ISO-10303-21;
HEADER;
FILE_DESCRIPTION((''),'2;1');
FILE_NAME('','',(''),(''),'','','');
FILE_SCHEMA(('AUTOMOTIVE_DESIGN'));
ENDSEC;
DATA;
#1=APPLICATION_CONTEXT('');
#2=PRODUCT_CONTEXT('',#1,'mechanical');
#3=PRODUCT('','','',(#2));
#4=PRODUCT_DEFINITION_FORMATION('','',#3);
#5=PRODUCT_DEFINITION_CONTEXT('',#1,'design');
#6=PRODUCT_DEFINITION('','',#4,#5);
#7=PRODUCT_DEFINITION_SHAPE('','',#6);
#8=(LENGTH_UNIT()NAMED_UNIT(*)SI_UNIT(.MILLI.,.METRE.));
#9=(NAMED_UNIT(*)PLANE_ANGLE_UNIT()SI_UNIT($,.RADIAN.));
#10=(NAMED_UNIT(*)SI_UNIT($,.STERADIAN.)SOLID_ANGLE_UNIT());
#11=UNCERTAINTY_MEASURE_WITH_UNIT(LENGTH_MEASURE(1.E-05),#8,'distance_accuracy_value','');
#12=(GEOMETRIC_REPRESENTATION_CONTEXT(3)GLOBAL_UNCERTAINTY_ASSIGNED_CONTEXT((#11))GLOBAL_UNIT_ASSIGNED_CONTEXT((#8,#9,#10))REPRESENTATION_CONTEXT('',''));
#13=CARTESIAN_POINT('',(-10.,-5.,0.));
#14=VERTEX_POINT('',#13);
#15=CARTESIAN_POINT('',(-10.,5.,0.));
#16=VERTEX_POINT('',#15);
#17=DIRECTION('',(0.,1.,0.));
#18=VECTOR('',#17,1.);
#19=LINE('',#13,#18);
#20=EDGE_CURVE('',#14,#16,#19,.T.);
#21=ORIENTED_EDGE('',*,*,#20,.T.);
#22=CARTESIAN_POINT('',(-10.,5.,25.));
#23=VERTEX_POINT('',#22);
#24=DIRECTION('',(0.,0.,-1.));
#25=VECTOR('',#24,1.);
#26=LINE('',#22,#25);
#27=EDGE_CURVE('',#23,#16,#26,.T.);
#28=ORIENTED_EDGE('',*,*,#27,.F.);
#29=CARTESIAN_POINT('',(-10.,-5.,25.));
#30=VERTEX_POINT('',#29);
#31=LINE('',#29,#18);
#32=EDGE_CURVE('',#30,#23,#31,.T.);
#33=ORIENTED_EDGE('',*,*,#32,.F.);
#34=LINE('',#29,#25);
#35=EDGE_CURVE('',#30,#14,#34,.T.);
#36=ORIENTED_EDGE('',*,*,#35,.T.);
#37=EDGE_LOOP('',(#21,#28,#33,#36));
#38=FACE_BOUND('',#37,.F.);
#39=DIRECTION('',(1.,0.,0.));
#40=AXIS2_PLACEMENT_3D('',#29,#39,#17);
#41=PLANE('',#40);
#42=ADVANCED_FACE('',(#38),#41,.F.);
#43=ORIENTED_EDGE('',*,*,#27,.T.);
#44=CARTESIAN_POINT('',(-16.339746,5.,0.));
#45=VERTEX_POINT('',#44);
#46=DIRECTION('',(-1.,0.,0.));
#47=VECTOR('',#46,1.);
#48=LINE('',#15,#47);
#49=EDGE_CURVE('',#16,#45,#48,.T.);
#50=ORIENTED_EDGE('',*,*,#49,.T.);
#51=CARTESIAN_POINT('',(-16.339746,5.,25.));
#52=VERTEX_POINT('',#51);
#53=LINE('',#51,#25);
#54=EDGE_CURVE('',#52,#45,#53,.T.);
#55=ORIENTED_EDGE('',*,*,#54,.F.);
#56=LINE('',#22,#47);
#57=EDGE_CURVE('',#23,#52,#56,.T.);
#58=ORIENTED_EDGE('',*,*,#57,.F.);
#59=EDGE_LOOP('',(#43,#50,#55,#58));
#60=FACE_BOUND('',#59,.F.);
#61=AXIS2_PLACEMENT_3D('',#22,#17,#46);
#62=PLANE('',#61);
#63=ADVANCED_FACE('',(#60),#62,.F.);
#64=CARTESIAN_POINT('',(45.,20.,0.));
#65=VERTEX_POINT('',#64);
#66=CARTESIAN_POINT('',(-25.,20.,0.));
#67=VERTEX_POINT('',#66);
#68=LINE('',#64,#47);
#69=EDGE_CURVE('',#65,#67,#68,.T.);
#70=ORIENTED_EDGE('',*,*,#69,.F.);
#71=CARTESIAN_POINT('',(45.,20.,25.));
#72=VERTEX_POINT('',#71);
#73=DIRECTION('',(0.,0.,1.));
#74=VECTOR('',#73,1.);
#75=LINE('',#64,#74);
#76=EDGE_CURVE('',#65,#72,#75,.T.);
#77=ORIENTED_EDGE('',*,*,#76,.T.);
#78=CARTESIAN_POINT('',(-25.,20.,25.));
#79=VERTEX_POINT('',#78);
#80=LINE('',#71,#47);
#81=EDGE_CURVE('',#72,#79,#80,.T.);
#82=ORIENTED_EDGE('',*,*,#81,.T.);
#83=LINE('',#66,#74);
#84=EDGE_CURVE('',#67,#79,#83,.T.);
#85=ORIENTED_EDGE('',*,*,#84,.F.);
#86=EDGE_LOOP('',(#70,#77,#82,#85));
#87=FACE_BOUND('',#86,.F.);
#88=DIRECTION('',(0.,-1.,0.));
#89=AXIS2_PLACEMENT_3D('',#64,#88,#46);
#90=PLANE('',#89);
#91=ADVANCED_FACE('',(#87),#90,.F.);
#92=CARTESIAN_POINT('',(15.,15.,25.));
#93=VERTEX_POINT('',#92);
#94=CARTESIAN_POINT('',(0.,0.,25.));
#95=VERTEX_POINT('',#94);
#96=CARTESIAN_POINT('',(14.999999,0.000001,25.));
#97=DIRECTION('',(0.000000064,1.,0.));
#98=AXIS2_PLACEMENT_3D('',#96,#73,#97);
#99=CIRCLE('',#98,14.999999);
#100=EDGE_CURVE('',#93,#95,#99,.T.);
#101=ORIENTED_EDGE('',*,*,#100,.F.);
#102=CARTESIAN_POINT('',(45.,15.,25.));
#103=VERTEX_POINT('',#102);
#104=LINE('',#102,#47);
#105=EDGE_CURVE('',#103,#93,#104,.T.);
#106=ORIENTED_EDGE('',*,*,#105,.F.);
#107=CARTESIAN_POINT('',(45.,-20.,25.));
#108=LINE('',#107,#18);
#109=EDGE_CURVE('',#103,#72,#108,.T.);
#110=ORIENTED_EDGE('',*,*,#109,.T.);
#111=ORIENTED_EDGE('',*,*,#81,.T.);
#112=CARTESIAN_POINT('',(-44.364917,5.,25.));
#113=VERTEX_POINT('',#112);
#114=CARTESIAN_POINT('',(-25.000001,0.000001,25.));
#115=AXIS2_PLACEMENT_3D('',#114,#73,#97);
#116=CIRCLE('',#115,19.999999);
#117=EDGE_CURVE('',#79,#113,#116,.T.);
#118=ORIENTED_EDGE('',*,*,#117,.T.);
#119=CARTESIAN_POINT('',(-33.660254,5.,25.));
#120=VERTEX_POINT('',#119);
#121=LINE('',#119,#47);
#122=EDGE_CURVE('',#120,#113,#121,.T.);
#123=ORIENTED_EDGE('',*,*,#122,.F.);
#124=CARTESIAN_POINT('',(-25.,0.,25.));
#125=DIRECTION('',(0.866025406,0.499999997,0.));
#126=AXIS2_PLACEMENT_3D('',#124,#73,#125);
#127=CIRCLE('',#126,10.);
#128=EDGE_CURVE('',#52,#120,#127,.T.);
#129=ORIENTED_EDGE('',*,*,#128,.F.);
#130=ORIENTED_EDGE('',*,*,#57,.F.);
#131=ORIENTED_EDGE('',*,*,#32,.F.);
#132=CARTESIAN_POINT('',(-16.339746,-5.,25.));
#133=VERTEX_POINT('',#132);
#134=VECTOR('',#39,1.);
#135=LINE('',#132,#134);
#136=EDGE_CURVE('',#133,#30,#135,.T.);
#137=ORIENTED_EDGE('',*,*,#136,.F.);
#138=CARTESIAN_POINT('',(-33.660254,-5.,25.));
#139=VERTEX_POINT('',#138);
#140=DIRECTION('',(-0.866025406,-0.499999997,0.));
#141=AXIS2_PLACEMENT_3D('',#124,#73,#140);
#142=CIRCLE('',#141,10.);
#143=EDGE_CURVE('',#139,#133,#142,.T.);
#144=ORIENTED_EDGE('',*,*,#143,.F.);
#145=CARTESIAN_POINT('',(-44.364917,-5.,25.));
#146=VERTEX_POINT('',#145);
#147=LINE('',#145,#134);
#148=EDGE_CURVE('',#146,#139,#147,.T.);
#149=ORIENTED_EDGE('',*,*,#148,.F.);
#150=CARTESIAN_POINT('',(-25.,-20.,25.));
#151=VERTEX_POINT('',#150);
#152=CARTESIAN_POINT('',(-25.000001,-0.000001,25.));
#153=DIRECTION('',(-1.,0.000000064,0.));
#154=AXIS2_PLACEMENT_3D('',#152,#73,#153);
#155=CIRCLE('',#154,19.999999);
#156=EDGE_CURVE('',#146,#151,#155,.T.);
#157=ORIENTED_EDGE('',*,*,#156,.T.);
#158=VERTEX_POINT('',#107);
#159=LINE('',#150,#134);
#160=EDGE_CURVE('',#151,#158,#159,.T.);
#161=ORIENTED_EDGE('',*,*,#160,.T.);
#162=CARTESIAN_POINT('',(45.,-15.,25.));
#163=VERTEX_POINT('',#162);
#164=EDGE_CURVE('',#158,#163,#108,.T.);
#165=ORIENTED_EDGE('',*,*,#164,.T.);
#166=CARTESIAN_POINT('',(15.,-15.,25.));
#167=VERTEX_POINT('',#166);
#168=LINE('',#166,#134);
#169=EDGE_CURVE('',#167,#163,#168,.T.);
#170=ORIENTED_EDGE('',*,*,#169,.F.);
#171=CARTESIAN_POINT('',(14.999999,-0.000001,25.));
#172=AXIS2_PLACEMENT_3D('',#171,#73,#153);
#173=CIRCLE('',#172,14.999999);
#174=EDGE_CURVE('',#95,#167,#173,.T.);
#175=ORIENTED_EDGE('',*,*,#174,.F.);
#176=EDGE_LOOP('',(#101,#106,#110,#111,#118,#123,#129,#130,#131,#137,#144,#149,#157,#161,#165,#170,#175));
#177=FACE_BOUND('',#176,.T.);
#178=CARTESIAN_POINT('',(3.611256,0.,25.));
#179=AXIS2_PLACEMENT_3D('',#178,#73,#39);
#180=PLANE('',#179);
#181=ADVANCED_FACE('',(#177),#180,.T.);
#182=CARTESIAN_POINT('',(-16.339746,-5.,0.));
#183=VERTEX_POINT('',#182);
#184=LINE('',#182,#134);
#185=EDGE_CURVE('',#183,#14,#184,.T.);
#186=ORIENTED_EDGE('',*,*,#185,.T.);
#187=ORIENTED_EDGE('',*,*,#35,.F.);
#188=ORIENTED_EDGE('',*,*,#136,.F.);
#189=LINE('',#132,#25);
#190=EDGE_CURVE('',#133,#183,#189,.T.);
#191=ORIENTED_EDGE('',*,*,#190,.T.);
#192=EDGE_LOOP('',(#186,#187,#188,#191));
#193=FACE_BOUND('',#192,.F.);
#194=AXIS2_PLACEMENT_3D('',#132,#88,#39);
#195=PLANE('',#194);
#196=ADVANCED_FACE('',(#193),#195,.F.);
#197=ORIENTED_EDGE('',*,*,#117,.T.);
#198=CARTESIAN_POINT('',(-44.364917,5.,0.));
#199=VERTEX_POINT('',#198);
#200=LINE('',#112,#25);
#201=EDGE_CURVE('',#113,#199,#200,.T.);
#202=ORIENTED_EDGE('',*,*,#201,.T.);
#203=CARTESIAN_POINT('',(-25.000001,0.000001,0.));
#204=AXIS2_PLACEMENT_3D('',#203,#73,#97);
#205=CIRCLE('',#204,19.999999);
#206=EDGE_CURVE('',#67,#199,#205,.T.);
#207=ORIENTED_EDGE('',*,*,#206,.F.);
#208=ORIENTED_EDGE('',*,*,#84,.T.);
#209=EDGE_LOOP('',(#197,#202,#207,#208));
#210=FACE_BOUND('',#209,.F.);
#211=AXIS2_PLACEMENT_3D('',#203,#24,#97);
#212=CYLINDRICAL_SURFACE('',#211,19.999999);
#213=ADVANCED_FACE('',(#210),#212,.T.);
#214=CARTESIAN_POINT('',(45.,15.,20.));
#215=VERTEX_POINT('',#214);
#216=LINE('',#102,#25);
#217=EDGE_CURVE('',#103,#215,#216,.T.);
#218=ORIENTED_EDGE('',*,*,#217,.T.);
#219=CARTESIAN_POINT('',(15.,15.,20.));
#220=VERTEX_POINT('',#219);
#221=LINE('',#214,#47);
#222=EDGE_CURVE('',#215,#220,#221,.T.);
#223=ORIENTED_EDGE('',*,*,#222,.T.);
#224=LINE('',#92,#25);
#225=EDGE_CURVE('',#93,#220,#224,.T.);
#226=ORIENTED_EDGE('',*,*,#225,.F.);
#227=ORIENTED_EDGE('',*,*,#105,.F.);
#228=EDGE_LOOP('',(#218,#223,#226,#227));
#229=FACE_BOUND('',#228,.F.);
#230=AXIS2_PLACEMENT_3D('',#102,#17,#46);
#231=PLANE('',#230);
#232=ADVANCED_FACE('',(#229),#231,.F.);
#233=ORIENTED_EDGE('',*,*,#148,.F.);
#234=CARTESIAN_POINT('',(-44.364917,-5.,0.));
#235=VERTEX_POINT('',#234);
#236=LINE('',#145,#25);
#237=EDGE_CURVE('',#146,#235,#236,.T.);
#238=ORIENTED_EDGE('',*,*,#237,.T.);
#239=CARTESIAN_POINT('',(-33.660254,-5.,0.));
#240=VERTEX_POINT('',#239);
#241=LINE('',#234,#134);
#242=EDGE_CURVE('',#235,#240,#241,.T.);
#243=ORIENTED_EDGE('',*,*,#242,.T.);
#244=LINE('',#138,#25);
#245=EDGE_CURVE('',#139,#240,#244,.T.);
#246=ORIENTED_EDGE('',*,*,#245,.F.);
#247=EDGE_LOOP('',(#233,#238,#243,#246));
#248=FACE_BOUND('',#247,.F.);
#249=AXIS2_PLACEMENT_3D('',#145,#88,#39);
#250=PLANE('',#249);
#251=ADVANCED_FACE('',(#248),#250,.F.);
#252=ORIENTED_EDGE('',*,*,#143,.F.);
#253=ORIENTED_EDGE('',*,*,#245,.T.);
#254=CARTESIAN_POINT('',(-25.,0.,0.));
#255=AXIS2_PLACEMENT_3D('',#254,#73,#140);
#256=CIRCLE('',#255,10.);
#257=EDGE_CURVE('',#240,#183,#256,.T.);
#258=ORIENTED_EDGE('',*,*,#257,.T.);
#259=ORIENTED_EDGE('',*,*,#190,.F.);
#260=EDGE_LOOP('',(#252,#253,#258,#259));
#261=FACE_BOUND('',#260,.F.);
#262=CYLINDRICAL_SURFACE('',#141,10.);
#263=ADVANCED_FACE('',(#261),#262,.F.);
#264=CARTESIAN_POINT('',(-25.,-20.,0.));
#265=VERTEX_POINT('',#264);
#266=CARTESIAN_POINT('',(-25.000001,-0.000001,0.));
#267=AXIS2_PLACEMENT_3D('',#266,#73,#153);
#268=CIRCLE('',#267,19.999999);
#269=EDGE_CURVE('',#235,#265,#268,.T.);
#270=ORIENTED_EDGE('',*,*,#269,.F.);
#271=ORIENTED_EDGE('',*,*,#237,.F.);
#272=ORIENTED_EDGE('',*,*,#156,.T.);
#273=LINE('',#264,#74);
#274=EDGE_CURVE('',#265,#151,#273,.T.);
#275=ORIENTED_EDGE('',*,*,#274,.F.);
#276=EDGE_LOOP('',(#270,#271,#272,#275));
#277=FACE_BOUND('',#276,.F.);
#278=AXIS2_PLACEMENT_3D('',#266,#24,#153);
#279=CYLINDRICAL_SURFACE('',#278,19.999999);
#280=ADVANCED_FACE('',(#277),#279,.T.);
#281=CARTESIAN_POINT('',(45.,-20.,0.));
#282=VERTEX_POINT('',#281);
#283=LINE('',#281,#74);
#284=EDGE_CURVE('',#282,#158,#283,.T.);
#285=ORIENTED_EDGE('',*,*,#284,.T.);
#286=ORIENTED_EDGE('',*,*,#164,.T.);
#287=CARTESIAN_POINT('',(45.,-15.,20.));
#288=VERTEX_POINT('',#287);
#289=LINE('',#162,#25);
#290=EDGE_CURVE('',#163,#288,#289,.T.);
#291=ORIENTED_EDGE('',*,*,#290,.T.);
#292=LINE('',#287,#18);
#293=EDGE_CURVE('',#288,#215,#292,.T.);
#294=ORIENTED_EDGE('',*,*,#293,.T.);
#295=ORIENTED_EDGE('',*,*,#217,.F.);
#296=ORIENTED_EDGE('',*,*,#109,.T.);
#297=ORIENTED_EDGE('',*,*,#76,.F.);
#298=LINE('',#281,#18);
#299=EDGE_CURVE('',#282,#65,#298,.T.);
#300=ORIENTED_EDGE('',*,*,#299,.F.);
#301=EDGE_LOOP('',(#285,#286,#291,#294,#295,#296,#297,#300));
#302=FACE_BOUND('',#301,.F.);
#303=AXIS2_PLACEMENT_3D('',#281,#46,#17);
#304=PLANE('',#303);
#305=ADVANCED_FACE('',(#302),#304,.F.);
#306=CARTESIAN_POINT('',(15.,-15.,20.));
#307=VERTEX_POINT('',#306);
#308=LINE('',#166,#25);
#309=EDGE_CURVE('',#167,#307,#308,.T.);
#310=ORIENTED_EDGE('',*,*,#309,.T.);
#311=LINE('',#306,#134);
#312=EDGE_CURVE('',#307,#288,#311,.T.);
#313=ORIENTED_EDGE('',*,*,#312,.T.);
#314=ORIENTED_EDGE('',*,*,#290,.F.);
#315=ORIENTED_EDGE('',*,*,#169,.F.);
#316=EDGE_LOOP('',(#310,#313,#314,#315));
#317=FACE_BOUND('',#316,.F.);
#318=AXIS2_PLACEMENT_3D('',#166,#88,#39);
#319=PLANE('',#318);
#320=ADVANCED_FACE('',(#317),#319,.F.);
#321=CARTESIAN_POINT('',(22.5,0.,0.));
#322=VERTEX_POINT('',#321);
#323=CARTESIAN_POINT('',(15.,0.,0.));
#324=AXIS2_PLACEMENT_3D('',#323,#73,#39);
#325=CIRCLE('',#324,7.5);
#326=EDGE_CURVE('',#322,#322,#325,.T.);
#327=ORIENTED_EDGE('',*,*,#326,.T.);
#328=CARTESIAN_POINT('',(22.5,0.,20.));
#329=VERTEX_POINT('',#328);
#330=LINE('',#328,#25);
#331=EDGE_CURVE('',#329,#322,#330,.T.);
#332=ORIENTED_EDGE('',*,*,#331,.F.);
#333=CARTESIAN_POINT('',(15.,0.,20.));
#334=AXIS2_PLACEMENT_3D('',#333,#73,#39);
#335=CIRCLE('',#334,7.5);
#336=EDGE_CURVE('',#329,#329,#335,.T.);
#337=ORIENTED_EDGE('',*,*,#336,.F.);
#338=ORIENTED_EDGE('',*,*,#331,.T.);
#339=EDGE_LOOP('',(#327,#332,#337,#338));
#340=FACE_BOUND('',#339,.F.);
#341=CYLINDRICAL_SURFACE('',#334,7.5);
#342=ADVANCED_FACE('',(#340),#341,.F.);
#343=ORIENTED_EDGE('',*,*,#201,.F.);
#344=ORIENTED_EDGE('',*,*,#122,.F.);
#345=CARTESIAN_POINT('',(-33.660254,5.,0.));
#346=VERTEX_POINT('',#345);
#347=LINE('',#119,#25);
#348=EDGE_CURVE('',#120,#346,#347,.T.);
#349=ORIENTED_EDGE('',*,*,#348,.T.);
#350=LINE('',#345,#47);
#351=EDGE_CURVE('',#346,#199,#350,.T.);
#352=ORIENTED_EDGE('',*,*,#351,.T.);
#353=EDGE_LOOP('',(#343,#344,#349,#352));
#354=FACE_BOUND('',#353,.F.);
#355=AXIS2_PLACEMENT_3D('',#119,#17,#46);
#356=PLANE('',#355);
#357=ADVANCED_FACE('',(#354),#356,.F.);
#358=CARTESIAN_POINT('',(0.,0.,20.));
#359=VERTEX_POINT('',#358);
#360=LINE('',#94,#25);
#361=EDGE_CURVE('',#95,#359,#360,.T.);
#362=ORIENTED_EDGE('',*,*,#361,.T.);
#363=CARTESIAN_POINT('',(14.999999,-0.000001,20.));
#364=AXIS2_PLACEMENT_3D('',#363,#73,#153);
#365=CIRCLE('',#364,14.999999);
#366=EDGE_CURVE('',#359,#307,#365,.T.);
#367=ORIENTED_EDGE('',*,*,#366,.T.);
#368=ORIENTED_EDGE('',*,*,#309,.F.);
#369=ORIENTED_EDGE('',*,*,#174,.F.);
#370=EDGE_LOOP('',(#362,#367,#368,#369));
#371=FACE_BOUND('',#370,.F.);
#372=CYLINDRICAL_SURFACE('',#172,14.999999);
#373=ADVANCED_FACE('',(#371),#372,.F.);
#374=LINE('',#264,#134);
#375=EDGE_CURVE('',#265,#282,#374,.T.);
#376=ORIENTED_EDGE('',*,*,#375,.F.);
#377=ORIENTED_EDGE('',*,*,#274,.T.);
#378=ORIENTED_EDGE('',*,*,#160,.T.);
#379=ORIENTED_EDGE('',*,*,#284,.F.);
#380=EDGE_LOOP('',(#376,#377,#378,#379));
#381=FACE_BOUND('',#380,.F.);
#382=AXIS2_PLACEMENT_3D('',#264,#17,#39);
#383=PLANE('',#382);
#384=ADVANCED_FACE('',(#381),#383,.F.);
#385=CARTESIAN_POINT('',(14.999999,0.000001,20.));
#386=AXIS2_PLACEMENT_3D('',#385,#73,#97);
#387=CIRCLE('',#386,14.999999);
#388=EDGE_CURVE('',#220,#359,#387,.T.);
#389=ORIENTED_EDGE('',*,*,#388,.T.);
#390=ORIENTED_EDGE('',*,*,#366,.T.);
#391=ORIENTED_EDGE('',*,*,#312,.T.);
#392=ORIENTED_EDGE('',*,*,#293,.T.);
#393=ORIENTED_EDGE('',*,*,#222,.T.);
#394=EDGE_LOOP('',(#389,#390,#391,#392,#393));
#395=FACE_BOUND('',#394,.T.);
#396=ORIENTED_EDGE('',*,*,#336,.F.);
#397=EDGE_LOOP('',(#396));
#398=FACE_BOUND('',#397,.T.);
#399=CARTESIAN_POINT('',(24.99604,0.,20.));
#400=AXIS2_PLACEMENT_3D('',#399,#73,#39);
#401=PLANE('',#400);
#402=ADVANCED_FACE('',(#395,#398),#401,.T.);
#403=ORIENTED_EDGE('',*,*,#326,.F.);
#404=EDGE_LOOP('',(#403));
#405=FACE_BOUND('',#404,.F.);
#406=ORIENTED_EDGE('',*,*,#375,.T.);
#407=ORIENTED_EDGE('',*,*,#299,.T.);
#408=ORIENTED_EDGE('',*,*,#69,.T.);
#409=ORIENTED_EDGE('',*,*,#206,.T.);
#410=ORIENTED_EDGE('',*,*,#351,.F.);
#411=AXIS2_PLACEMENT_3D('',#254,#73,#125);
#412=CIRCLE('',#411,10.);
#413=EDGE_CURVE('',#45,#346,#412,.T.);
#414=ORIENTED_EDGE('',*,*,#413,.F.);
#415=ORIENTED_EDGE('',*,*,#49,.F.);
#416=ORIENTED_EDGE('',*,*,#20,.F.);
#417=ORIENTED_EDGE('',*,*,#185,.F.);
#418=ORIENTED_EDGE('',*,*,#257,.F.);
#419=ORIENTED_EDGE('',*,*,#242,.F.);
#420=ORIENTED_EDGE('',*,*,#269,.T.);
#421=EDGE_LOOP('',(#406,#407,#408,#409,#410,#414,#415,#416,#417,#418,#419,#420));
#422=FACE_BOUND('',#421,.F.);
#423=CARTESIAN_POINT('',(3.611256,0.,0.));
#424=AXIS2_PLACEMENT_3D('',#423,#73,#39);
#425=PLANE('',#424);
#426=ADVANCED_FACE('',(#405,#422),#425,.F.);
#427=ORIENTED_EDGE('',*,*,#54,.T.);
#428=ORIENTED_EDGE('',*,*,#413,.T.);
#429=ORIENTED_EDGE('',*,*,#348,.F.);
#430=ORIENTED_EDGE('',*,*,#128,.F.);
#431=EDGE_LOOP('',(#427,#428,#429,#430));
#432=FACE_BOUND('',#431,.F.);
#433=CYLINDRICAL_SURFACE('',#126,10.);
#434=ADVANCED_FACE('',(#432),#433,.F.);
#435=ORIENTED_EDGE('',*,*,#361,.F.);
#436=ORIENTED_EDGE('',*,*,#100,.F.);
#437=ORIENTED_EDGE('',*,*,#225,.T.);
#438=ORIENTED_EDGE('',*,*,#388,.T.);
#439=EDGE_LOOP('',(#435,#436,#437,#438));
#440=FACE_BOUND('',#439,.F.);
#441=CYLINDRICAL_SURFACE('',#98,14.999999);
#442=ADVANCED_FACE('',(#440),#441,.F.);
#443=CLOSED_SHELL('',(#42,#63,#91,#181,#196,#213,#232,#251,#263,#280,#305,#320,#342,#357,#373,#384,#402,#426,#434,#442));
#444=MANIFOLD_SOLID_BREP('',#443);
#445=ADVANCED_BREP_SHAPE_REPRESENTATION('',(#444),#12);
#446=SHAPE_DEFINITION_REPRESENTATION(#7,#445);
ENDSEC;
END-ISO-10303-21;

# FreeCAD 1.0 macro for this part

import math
import FreeCAD as App
import Part
import Sketcher
from FreeCAD import Vector

doc = App.newDocument("Part")
body = doc.addObject("PartDesign::Body", "Body")

# Sketch on XY plane
sketch1 = body.newObject("Sketcher::SketchObject", "Sketch")
sketch1.AttachmentSupport = (doc.getObject("XY_Plane"), [""])
sketch1.MapMode = "FlatFace"
sketch1.addGeometry([
    Part.LineSegment(Vector(45, -20, 0), Vector(45, 20, 0)),  # 0
    Part.LineSegment(Vector(45, 20, 0), Vector(-25, 20, 0)),  # 1
    Part.ArcOfCircle(Part.Circle(Vector(-25, 0, 0), Vector(0, 0, 1), 20), math.radians(90), math.radians(180)),  # 2
    Part.ArcOfCircle(Part.Circle(Vector(-25, 0, 0), Vector(0, 0, 1), 20), math.radians(180), math.radians(270)),  # 3
    Part.LineSegment(Vector(-25, -20, 0), Vector(45, -20, 0)),  # 4
], False)
sketch1.addConstraint([
    Sketcher.Constraint("Coincident", 0, 2, 1, 1),
    Sketcher.Constraint("Tangent", 1, 2, 2, 1),
    Sketcher.Constraint("Tangent", 2, 2, 3, 1),
    Sketcher.Constraint("Tangent", 3, 2, 4, 1),
    Sketcher.Constraint("Coincident", 4, 2, 0, 1),
    Sketcher.Constraint("Vertical", 0),
    Sketcher.Constraint("Horizontal", 1),
    Sketcher.Constraint("Horizontal", 4),
    Sketcher.Constraint("Equal", 2, 3),
    Sketcher.Constraint("PointOnObject", 2, 3, -1),
    Sketcher.Constraint("PointOnObject", 2, 2, -1),
    Sketcher.Constraint("Radius", 2, 19.999999),
    Sketcher.Constraint("DistanceX", 1, 2, 1, 1, 70.0),
    Sketcher.Constraint("DistanceX", 2, 3, -1, 1, 25.000001),
])
pad1 = body.newObject("PartDesign::Pad", "Pad")
pad1.Profile = sketch1
pad1.Length = 25

# Sketch on XY plane
sketch2 = body.newObject("Sketcher::SketchObject", "Sketch001")
sketch2.AttachmentSupport = (doc.getObject("XY_Plane"), [""])
sketch2.MapMode = "FlatFace"
sketch2.AttachmentOffset = App.Placement(Vector(0, 0, 25), App.Rotation())
sketch2.addGeometry([
    Part.LineSegment(Vector(-44, -5, 0), Vector(-34, -5, 0)),  # 0
    Part.ArcOfCircle(Part.Circle(Vector(-25, 0, 0), Vector(0, 0, 1), 10), math.radians(-150), math.radians(-30)),  # 1
    Part.LineSegment(Vector(-16, -5, 0), Vector(-10, -5, 0)),  # 2
    Part.LineSegment(Vector(-10, -5, 0), Vector(-10, 5, 0)),  # 3
    Part.LineSegment(Vector(-10, 5, 0), Vector(-16, 5, 0)),  # 4
    Part.ArcOfCircle(Part.Circle(Vector(-25, 0, 0), Vector(0, 0, 1), 10), math.radians(30), math.radians(150)),  # 5
    Part.LineSegment(Vector(-34, 5, 0), Vector(-44, 5, 0)),  # 6
    Part.ArcOfCircle(Part.Circle(Vector(-25, 0, 0), Vector(0, 0, 1), 20), math.radians(166), math.radians(194)),  # 7
], False)
sketch2.addConstraint([
    Sketcher.Constraint("Coincident", 0, 2, 1, 1),
    Sketcher.Constraint("Coincident", 1, 2, 2, 1),
    Sketcher.Constraint("Coincident", 2, 2, 3, 1),
    Sketcher.Constraint("Coincident", 3, 2, 4, 1),
    Sketcher.Constraint("Coincident", 4, 2, 5, 1),
    Sketcher.Constraint("Coincident", 5, 2, 6, 1),
    Sketcher.Constraint("Coincident", 6, 2, 7, 1),
    Sketcher.Constraint("Coincident", 7, 2, 0, 1),
    Sketcher.Constraint("Horizontal", 0),
    Sketcher.Constraint("Horizontal", 2),
    Sketcher.Constraint("Vertical", 3),
    Sketcher.Constraint("Horizontal", 4),
    Sketcher.Constraint("Horizontal", 6),
    Sketcher.Constraint("Coincident", 5, 3, 1, 3),
    Sketcher.Constraint("Coincident", 7, 3, 1, 3),
    Sketcher.Constraint("Equal", 1, 5),
    Sketcher.Constraint("Symmetric", 1, 2, 4, 2, -1),
    Sketcher.Constraint("Horizontal", 0, 2, 1, 2),
    Sketcher.Constraint("Horizontal", 4, 2, 5, 2),
    Sketcher.Constraint("Radius", 1, 10.0),
    Sketcher.Constraint("DistanceY", 3, 1, 3, 2, 10.0),
    Sketcher.Constraint("DistanceX", 1, 3, -1, 1, 25.0),
    Sketcher.Constraint("DistanceX", 2, 2, -1, 1, 10.0),
    Sketcher.Constraint("Radius", 7, 20.000008),
])
pocket1 = body.newObject("PartDesign::Pocket", "Pocket")
pocket1.Profile = sketch2
pocket1.Type = "ThroughAll"

# Sketch on XY plane
sketch3 = body.newObject("Sketcher::SketchObject", "Sketch002")
sketch3.AttachmentSupport = (doc.getObject("XY_Plane"), [""])
sketch3.MapMode = "FlatFace"
sketch3.AttachmentOffset = App.Placement(Vector(0, 0, 25), App.Rotation())
sketch3.addGeometry([
    Part.LineSegment(Vector(45, -15, 0), Vector(45, 15, 0)),  # 0
    Part.LineSegment(Vector(45, 15, 0), Vector(15, 15, 0)),  # 1
    Part.ArcOfCircle(Part.Circle(Vector(15, 0, 0), Vector(0, 0, 1), 15), math.radians(90), math.radians(180)),  # 2
    Part.ArcOfCircle(Part.Circle(Vector(15, 0, 0), Vector(0, 0, 1), 15), math.radians(180), math.radians(270)),  # 3
    Part.LineSegment(Vector(15, -15, 0), Vector(45, -15, 0)),  # 4
], False)
sketch3.addConstraint([
    Sketcher.Constraint("Coincident", 0, 2, 1, 1),
    Sketcher.Constraint("Tangent", 1, 2, 2, 1),
    Sketcher.Constraint("Tangent", 2, 2, 3, 1),
    Sketcher.Constraint("Tangent", 3, 2, 4, 1),
    Sketcher.Constraint("Coincident", 4, 2, 0, 1),
    Sketcher.Constraint("Vertical", 0),
    Sketcher.Constraint("Horizontal", 1),
    Sketcher.Constraint("Horizontal", 4),
    Sketcher.Constraint("Coincident", 2, 2, -1, 1),
    Sketcher.Constraint("Equal", 2, 3),
    Sketcher.Constraint("PointOnObject", 2, 3, -1),
    Sketcher.Constraint("Equal", 4, 0),
    Sketcher.Constraint("Radius", 2, 14.999999),
])
pocket2 = body.newObject("PartDesign::Pocket", "Pocket001")
pocket2.Profile = sketch3
pocket2.Length = 5

# Sketch on XY plane
sketch4 = body.newObject("Sketcher::SketchObject", "Sketch003")
sketch4.AttachmentSupport = (doc.getObject("XY_Plane"), [""])
sketch4.MapMode = "FlatFace"
sketch4.AttachmentOffset = App.Placement(Vector(0, 0, 20), App.Rotation())
sketch4.addGeometry(Part.Circle(Vector(15, 0, 0), Vector(0, 0, 1), 8), False)
sketch4.addConstraint([
    Sketcher.Constraint("PointOnObject", 0, 3, -1),
    Sketcher.Constraint("Diameter", 0, 15.0),
    Sketcher.Constraint("DistanceX", -1, 1, 0, 3, 15.0),
])
pocket3 = body.newObject("PartDesign::Pocket", "Pocket002")
pocket3.Profile = sketch4
pocket3.Type = "ThroughAll"

doc.recompute()
